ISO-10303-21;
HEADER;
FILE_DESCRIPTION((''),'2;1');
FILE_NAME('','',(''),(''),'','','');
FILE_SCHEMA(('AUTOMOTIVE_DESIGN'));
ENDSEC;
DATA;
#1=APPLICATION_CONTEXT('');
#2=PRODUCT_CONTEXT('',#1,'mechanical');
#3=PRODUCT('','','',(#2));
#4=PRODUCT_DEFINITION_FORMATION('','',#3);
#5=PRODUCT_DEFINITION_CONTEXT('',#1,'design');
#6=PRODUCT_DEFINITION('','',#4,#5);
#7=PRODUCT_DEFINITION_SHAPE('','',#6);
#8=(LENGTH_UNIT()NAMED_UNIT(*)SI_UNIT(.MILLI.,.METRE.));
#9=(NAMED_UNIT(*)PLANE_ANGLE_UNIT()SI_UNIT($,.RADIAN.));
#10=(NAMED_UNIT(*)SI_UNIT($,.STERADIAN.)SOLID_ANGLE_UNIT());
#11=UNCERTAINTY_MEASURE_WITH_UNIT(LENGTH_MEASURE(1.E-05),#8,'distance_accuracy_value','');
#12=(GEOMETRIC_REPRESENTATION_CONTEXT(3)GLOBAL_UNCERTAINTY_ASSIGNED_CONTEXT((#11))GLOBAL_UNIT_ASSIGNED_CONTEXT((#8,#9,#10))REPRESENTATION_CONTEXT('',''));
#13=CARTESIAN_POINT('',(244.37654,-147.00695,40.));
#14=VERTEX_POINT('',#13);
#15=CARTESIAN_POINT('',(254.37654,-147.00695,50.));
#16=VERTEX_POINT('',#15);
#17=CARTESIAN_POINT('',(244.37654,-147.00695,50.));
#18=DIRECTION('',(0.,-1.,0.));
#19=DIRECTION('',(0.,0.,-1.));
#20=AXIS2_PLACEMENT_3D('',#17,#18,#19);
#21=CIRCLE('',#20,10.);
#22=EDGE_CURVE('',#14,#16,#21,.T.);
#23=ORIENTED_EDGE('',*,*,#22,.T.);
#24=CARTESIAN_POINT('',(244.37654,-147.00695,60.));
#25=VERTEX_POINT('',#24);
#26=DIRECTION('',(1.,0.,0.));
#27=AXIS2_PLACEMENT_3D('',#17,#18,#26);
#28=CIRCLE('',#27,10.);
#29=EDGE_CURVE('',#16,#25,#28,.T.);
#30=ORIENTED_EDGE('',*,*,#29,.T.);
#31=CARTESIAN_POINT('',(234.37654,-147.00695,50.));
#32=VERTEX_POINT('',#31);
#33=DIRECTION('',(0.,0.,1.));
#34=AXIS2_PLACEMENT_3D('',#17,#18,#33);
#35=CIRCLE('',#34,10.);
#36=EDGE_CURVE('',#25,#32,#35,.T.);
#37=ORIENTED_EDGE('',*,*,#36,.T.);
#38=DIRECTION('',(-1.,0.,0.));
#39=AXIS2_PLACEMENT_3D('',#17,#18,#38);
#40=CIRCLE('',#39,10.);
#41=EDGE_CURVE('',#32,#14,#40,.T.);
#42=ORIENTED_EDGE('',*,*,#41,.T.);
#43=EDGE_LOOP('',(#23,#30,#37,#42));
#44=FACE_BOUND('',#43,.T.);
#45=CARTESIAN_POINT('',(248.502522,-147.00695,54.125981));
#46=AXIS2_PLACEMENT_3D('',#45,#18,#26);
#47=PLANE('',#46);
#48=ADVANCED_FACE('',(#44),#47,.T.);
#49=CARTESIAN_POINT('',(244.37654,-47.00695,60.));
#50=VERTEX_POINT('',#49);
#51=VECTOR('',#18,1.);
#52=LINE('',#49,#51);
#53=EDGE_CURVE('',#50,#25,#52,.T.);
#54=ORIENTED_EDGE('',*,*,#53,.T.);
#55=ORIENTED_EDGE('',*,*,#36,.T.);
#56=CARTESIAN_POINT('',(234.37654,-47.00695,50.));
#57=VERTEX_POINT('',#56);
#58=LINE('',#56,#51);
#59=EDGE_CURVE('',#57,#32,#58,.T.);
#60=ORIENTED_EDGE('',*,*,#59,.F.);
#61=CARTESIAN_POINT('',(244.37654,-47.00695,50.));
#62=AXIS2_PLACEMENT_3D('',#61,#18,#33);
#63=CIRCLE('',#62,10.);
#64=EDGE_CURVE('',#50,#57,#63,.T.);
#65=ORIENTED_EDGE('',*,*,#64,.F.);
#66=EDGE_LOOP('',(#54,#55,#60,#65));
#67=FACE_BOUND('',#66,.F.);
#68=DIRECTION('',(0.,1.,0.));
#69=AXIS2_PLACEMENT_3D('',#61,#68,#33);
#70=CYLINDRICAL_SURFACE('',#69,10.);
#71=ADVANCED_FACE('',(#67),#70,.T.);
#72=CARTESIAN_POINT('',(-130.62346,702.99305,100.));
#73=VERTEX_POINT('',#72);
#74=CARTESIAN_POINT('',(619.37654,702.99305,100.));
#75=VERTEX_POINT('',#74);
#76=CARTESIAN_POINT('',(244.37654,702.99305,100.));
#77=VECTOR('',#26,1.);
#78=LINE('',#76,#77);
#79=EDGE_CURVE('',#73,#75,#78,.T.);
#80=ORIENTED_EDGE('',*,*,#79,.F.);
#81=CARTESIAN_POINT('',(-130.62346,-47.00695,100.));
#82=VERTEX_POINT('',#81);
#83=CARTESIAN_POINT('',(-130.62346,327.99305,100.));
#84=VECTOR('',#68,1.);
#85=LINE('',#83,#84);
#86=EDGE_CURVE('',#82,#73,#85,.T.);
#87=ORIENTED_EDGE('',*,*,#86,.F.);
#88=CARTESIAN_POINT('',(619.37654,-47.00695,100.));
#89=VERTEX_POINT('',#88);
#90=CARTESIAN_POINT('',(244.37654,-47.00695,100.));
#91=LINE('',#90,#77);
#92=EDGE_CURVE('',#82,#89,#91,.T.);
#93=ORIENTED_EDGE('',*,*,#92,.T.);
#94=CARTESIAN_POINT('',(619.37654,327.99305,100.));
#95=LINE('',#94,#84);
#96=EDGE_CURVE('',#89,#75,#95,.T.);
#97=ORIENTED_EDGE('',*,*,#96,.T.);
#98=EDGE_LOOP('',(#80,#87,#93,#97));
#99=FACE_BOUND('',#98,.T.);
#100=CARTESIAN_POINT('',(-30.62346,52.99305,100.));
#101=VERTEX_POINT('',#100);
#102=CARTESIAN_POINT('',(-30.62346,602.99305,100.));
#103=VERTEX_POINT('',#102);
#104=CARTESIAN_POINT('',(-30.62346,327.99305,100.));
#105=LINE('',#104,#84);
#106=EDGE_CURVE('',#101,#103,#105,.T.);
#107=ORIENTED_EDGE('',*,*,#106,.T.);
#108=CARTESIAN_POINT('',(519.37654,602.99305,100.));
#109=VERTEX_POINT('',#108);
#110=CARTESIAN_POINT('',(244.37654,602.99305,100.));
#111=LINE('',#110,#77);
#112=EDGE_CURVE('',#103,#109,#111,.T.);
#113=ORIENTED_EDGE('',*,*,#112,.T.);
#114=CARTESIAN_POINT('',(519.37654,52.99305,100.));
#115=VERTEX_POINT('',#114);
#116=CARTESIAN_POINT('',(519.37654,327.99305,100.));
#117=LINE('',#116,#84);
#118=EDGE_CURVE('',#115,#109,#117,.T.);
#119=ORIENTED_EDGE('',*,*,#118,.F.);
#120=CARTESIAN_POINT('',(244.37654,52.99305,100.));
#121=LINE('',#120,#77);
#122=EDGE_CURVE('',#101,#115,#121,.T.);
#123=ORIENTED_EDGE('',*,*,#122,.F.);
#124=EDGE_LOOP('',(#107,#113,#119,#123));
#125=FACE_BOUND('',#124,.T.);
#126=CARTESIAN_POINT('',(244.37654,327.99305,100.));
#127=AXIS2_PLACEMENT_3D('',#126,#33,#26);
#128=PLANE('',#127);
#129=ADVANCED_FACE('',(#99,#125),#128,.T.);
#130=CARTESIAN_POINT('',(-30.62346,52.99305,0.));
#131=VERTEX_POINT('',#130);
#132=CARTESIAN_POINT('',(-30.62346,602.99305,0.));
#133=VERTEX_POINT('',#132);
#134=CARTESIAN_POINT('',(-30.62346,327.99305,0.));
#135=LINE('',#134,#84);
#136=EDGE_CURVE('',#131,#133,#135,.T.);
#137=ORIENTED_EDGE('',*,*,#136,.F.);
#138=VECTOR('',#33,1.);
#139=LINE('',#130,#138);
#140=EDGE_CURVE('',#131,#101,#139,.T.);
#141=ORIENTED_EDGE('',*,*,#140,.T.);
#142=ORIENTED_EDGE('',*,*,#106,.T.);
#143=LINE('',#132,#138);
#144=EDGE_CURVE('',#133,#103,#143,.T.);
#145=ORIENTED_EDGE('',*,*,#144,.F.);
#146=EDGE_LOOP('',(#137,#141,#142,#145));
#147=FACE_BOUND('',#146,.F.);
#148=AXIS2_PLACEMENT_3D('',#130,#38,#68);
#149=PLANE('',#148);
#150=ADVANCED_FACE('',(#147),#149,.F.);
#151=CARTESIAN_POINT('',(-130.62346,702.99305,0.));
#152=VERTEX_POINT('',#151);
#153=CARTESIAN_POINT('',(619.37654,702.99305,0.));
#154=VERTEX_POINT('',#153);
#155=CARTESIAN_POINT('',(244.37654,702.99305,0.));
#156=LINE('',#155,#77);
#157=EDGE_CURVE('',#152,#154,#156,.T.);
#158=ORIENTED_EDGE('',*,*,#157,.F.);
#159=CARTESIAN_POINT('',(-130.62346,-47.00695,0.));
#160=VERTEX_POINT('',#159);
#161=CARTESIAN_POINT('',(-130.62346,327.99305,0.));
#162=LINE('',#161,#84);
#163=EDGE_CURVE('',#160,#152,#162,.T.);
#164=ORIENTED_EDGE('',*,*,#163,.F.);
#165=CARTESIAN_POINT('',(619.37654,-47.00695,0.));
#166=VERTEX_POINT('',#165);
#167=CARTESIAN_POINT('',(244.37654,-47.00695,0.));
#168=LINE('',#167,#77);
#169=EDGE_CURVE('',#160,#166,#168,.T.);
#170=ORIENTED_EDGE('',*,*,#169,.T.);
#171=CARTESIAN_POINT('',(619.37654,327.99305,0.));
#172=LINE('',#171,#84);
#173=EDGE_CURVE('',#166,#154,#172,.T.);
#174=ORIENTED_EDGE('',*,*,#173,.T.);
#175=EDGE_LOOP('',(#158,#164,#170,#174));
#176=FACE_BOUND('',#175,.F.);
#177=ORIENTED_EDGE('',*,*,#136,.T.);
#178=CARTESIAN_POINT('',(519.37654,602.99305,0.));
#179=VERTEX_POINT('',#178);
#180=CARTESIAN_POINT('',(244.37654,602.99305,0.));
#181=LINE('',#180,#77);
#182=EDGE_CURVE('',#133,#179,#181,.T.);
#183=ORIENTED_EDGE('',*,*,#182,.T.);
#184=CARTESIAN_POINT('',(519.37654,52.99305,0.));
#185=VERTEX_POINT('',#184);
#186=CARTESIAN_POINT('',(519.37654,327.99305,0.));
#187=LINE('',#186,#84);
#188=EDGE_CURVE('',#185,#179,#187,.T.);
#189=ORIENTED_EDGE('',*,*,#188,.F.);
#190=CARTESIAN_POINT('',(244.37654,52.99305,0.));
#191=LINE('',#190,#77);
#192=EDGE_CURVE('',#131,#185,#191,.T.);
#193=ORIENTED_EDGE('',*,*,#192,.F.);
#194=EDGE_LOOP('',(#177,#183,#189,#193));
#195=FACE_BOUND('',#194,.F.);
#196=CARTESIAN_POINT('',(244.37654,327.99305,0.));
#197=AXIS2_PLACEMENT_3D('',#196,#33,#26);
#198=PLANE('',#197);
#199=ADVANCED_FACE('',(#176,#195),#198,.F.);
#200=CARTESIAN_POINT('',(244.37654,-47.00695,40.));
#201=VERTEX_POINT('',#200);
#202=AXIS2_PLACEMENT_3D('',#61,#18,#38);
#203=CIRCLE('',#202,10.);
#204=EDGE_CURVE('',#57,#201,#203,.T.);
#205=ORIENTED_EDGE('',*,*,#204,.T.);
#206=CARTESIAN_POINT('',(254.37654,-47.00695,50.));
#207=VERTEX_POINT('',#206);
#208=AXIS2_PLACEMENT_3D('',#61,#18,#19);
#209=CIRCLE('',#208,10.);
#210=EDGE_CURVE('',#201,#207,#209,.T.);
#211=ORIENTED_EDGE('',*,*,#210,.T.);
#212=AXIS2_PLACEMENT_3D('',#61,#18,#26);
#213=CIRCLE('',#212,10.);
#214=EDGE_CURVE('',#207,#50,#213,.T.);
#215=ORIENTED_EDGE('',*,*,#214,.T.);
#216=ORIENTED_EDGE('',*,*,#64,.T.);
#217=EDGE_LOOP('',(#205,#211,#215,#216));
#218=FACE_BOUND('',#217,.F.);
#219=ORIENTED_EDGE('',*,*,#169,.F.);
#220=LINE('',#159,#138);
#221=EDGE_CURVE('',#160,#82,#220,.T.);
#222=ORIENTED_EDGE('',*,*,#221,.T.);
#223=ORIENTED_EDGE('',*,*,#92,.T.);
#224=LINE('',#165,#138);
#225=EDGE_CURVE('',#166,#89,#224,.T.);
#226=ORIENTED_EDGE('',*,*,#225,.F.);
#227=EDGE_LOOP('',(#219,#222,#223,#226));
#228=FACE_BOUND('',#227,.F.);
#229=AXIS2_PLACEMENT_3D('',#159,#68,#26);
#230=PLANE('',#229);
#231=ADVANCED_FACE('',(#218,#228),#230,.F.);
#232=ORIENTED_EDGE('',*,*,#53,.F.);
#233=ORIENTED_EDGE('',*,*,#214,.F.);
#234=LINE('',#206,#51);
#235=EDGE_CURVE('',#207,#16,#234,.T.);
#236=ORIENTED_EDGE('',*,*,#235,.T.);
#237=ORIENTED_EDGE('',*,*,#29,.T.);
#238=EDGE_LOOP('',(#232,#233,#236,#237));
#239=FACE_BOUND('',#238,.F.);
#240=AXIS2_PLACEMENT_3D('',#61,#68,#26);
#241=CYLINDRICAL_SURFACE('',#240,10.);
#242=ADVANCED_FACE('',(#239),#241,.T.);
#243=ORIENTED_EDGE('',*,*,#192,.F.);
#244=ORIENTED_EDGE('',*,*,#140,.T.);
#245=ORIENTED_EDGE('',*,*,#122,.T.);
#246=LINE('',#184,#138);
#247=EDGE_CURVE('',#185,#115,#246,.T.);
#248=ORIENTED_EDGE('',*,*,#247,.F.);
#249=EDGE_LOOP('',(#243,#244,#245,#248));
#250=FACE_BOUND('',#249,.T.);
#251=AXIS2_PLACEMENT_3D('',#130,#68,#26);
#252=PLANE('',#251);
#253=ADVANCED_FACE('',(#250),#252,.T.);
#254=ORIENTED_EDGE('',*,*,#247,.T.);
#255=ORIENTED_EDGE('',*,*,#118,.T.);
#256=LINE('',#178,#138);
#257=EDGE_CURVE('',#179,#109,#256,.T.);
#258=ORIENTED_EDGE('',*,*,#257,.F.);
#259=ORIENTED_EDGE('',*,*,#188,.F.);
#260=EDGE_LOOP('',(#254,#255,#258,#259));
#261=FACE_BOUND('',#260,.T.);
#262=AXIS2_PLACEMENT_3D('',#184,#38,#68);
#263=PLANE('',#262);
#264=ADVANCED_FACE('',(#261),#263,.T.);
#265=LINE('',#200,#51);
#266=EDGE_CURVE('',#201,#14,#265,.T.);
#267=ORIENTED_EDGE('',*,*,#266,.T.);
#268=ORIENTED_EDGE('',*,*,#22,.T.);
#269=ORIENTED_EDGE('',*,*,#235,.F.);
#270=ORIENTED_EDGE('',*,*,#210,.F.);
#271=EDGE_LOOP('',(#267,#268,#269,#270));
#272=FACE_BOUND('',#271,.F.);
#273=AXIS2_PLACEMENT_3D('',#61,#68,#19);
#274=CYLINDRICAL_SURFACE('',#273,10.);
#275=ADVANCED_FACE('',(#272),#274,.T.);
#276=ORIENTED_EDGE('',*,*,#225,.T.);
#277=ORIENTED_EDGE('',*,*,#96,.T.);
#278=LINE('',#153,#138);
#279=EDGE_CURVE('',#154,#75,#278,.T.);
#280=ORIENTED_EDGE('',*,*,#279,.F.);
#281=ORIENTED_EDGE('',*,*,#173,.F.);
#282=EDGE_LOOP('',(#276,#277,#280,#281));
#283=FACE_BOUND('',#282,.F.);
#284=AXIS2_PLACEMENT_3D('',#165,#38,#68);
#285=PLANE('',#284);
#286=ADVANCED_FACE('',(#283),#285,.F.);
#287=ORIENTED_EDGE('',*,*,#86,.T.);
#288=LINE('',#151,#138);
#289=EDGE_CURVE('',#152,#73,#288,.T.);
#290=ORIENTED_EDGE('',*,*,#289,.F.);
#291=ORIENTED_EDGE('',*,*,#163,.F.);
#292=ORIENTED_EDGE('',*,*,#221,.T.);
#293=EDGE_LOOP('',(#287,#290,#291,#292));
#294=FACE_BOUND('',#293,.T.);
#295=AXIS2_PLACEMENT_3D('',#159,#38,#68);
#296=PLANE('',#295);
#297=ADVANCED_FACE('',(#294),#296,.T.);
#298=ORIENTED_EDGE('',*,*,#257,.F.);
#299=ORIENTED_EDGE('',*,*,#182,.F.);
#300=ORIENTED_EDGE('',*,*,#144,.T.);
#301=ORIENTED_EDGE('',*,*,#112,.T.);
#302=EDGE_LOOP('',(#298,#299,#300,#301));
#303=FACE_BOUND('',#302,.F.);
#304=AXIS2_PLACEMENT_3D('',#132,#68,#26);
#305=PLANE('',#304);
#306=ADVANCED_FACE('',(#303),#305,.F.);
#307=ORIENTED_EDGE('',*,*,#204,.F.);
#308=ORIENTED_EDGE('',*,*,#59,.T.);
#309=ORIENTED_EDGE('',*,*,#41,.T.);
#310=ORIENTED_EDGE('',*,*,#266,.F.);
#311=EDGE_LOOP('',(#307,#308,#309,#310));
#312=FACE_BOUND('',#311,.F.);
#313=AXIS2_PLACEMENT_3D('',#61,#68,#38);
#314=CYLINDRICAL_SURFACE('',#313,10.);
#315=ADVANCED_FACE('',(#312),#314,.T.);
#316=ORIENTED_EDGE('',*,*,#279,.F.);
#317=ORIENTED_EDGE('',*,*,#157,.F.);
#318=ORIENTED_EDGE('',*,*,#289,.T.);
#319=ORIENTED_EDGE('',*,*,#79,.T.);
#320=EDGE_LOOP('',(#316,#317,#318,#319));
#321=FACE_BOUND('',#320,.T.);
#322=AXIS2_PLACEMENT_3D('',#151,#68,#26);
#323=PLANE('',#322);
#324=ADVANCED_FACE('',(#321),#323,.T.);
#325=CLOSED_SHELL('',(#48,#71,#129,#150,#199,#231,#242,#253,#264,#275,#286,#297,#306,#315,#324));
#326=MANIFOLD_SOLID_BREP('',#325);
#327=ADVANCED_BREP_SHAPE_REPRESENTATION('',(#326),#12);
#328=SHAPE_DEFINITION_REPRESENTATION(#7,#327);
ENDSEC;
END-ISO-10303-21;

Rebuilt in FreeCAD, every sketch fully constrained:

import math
import FreeCAD as App
import Part
import Sketcher
Q = App.Units.Quantity

doc = App.newDocument("Part")
params = doc.addObject("Spreadsheet::Sheet", "Params")
for row, (alias, value) in enumerate([
    ("sketch1_width", "750 mm"),
    ("sketch1_width2", "550 mm"),
    ("pad1_length", "100 mm"),
    ("sketch2_radius", "10 mm"),
    ("pad2_length", "100 mm"),
], start=1):
    params.set(f"A{row}", alias)
    params.set(f"B{row}", "=" + value)
    params.setAlias(f"B{row}", alias)

body = doc.addObject("PartDesign::Body", "Body")

sketch1 = body.newObject("Sketcher::SketchObject", "Sketch")
sketch1.AttachmentSupport = (doc.getObject("XY_Plane"), [""])
sketch1.MapMode = "FlatFace"
sketch1.addGeometry(Part.LineSegment(App.Vector(-131, 703, 0), App.Vector(-131, -47, 0)), False)
sketch1.addGeometry(Part.LineSegment(App.Vector(-131, -47, 0), App.Vector(619, -47, 0)), False)
sketch1.addGeometry(Part.LineSegment(App.Vector(619, -47, 0), App.Vector(619, 703, 0)), False)
sketch1.addGeometry(Part.LineSegment(App.Vector(619, 703, 0), App.Vector(-131, 703, 0)), False)
sketch1.addGeometry(Part.LineSegment(App.Vector(519, 53, 0), App.Vector(-31, 53, 0)), False)
sketch1.addGeometry(Part.LineSegment(App.Vector(-31, 53, 0), App.Vector(-31, 603, 0)), False)
sketch1.addGeometry(Part.LineSegment(App.Vector(-31, 603, 0), App.Vector(519, 603, 0)), False)
sketch1.addGeometry(Part.LineSegment(App.Vector(519, 603, 0), App.Vector(519, 53, 0)), False)
sketch1.addConstraint(Sketcher.Constraint("Coincident", 0, 2, 1, 1))
sketch1.addConstraint(Sketcher.Constraint("Coincident", 1, 2, 2, 1))
sketch1.addConstraint(Sketcher.Constraint("Coincident", 2, 2, 3, 1))
sketch1.addConstraint(Sketcher.Constraint("Coincident", 3, 2, 0, 1))
sketch1.addConstraint(Sketcher.Constraint("Coincident", 4, 2, 5, 1))
sketch1.addConstraint(Sketcher.Constraint("Coincident", 5, 2, 6, 1))
sketch1.addConstraint(Sketcher.Constraint("Coincident", 6, 2, 7, 1))
sketch1.addConstraint(Sketcher.Constraint("Coincident", 7, 2, 4, 1))
sketch1.addConstraint(Sketcher.Constraint("Vertical", 0))
sketch1.addConstraint(Sketcher.Constraint("Horizontal", 1))
sketch1.addConstraint(Sketcher.Constraint("Vertical", 2))
sketch1.addConstraint(Sketcher.Constraint("Horizontal", 3))
sketch1.addConstraint(Sketcher.Constraint("Horizontal", 4))
sketch1.addConstraint(Sketcher.Constraint("Vertical", 5))
sketch1.addConstraint(Sketcher.Constraint("Horizontal", 6))
sketch1.addConstraint(Sketcher.Constraint("Vertical", 7))
sketch1.addConstraint(Sketcher.Constraint("Equal", 3, 0))
sketch1.addConstraint(Sketcher.Constraint("Equal", 6, 5))
sketch1.addConstraint(Sketcher.Constraint("DistanceX", 1, 1, 1, 2, Q("750 mm")))
sketch1.addConstraint(Sketcher.Constraint("DistanceX", 4, 2, 4, 1, Q("550 mm")))
sketch1.addConstraint(Sketcher.Constraint("DistanceX", 0, 2, 4, 2, Q("100 mm")))
sketch1.addConstraint(Sketcher.Constraint("DistanceY", 0, 2, 4, 2, Q("100 mm")))
sketch1.addConstraint(Sketcher.Constraint("DistanceX", 0, 2, -1, 1, Q("130.62346 mm")))
sketch1.addConstraint(Sketcher.Constraint("DistanceY", 0, 2, -1, 1, Q("47.00695 mm")))
sketch1.setExpression("Constraints[18]", "Params.sketch1_width")
sketch1.setExpression("Constraints[19]", "Params.sketch1_width2")
pad1 = body.newObject("PartDesign::Pad", "Pad")
pad1.Profile = sketch1
pad1.setExpression("Length", "Params.pad1_length")

sketch2 = body.newObject("Sketcher::SketchObject", "Sketch001")
sketch2.AttachmentSupport = (doc.getObject("XZ_Plane"), [""])
sketch2.MapMode = "FlatFace"
sketch2.AttachmentOffset = App.Placement(App.Vector(0, 0, 47.00695), App.Rotation())
sketch2.addGeometry(Part.ArcOfCircle(Part.Circle(App.Vector(244, 50, 0), App.Vector(0, 0, 1), 10), math.radians(0), math.radians(90)), False)
sketch2.addGeometry(Part.ArcOfCircle(Part.Circle(App.Vector(244, 50, 0), App.Vector(0, 0, 1), 10), math.radians(90), math.radians(180)), False)
sketch2.addGeometry(Part.ArcOfCircle(Part.Circle(App.Vector(244, 50, 0), App.Vector(0, 0, 1), 10), math.radians(180), math.radians(270)), False)
sketch2.addGeometry(Part.ArcOfCircle(Part.Circle(App.Vector(244, 50, 0), App.Vector(0, 0, 1), 10), math.radians(-90), math.radians(0)), False)
sketch2.addConstraint(Sketcher.Constraint("Tangent", 0, 2, 1, 1))
sketch2.addConstraint(Sketcher.Constraint("Tangent", 1, 2, 2, 1))
sketch2.addConstraint(Sketcher.Constraint("Tangent", 2, 2, 3, 1))
sketch2.addConstraint(Sketcher.Constraint("Tangent", 3, 2, 0, 1))
sketch2.addConstraint(Sketcher.Constraint("Equal", 0, 1))
sketch2.addConstraint(Sketcher.Constraint("Horizontal", 3, 3, 1, 2))
sketch2.addConstraint(Sketcher.Constraint("Horizontal", 1, 2, 3, 2))
sketch2.addConstraint(Sketcher.Constraint("Vertical", 3, 3, 0, 2))
sketch2.addConstraint(Sketcher.Constraint("Vertical", 0, 2, 2, 2))
sketch2.addConstraint(Sketcher.Constraint("Radius", 0, Q("10 mm")))
sketch2.addConstraint(Sketcher.Constraint("DistanceY", -1, 1, 0, 3, Q("50 mm")))
sketch2.addConstraint(Sketcher.Constraint("DistanceX", -1, 1, 0, 3, Q("244.37654 mm")))
sketch2.setExpression("Constraints[9]", "Params.sketch2_radius")
pad2 = body.newObject("PartDesign::Pad", "Pad001")
pad2.Profile = sketch2
pad2.setExpression("Length", "Params.pad2_length")

doc.recompute()
